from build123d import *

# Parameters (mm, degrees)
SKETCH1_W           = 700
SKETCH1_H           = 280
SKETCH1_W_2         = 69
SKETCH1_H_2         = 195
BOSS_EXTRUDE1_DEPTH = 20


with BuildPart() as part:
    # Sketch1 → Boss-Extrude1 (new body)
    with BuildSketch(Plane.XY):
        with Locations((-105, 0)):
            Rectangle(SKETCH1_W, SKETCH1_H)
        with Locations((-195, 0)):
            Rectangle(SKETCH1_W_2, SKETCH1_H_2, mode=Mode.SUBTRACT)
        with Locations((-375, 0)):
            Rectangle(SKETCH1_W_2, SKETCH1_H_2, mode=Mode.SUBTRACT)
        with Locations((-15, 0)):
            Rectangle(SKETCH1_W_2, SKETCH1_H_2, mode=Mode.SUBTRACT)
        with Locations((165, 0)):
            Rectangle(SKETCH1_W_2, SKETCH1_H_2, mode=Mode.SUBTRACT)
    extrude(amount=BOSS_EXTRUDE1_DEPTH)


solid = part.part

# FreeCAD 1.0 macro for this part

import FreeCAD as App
import Part
import Sketcher
from FreeCAD import Vector


def add_polygon(sketch, points):
    """Adds a closed chain of lines whose ends are joined by coincident constraints."""
    first, n = sketch.GeometryCount, len(points)
    for a, b in zip(points, points[1:] + points[:1]):
        sketch.addGeometry(Part.LineSegment(App.Vector(*a, 0), App.Vector(*b, 0)), False)
    for i in range(n):
        sketch.addConstraint(Sketcher.Constraint("Coincident", first + i, 2, first + (i + 1) % n, 1))

doc = App.newDocument("Part")
body = doc.addObject("PartDesign::Body", "Body")

sketch1 = body.newObject("Sketcher::SketchObject", "Sketch")
sketch1.AttachmentSupport = (doc.getObject("XY_Plane"), [""])
sketch1.MapMode = "FlatFace"
add_polygon(sketch1, [(-455, 140), (-455, -140), (245, -140), (245, 140)])
add_polygon(sketch1, [(-340, -98), (-410, -98), (-410, 98), (-340, 98)])
add_polygon(sketch1, [(-160, -98), (-230, -98), (-230, 98), (-160, 98)])
add_polygon(sketch1, [(20, -98), (-50, -98), (-50, 98), (20, 98)])
add_polygon(sketch1, [(200, -98), (130, -98), (130, 98), (200, 98)])
sketch1.addConstraint([
    Sketcher.Constraint("Vertical", 0),
    Sketcher.Constraint("Horizontal", 1),
    Sketcher.Constraint("Vertical", 2),
    Sketcher.Constraint("Horizontal", 3),
    Sketcher.Constraint("Horizontal", 4),
    Sketcher.Constraint("Vertical", 5),
    Sketcher.Constraint("Horizontal", 6),
    Sketcher.Constraint("Vertical", 7),
    Sketcher.Constraint("Horizontal", 8),
    Sketcher.Constraint("Vertical", 9),
    Sketcher.Constraint("Horizontal", 10),
    Sketcher.Constraint("Vertical", 11),
    Sketcher.Constraint("Horizontal", 12),
    Sketcher.Constraint("Vertical", 13),
    Sketcher.Constraint("Horizontal", 14),
    Sketcher.Constraint("Vertical", 15),
    Sketcher.Constraint("Horizontal", 16),
    Sketcher.Constraint("Vertical", 17),
    Sketcher.Constraint("Horizontal", 18),
    Sketcher.Constraint("Vertical", 19),
    Sketcher.Constraint("Horizontal", 7, 2, 8, 2),
    Sketcher.Constraint("Horizontal", 6, 2, 9, 2),
    Sketcher.Constraint("Horizontal", 11, 2, 12, 2),
    Sketcher.Constraint("Horizontal", 10, 2, 13, 2),
    Sketcher.Constraint("Horizontal", 15, 2, 16, 2),
    Sketcher.Constraint("Horizontal", 14, 2, 17, 2),
    Sketcher.Constraint("Equal", 6, 8),
    Sketcher.Constraint("Equal", 10, 12),
    Sketcher.Constraint("Equal", 14, 16),
    Sketcher.Constraint("DistanceX", 1, 1, 1, 2, 700.0),
    Sketcher.Constraint("DistanceX", 4, 2, 4, 1, 69.0),
    Sketcher.Constraint("DistanceY", 0, 2, 0, 1, 280.0),
    Sketcher.Constraint("DistanceY", 5, 1, 5, 2, 195.0),
    Sketcher.Constraint("DistanceX", 0, 2, -1, 1, 455.0),
    Sketcher.Constraint("DistanceY", 0, 2, -1, 1, 140.0),
    Sketcher.Constraint("DistanceX", 7, 2, 8, 2, 111.0),
    Sketcher.Constraint("DistanceX", 11, 2, 12, 2, 111.0),
    Sketcher.Constraint("DistanceX", 15, 2, 16, 2, 111.0),
    Sketcher.Constraint("DistanceX", 4, 2, -1, 1, 409.5),
    Sketcher.Constraint("DistanceY", 4, 2, -1, 1, 97.5),
])
pad1 = body.newObject("PartDesign::Pad", "Pad")
pad1.Profile = sketch1
pad1.Length = 20

doc.recompute()
